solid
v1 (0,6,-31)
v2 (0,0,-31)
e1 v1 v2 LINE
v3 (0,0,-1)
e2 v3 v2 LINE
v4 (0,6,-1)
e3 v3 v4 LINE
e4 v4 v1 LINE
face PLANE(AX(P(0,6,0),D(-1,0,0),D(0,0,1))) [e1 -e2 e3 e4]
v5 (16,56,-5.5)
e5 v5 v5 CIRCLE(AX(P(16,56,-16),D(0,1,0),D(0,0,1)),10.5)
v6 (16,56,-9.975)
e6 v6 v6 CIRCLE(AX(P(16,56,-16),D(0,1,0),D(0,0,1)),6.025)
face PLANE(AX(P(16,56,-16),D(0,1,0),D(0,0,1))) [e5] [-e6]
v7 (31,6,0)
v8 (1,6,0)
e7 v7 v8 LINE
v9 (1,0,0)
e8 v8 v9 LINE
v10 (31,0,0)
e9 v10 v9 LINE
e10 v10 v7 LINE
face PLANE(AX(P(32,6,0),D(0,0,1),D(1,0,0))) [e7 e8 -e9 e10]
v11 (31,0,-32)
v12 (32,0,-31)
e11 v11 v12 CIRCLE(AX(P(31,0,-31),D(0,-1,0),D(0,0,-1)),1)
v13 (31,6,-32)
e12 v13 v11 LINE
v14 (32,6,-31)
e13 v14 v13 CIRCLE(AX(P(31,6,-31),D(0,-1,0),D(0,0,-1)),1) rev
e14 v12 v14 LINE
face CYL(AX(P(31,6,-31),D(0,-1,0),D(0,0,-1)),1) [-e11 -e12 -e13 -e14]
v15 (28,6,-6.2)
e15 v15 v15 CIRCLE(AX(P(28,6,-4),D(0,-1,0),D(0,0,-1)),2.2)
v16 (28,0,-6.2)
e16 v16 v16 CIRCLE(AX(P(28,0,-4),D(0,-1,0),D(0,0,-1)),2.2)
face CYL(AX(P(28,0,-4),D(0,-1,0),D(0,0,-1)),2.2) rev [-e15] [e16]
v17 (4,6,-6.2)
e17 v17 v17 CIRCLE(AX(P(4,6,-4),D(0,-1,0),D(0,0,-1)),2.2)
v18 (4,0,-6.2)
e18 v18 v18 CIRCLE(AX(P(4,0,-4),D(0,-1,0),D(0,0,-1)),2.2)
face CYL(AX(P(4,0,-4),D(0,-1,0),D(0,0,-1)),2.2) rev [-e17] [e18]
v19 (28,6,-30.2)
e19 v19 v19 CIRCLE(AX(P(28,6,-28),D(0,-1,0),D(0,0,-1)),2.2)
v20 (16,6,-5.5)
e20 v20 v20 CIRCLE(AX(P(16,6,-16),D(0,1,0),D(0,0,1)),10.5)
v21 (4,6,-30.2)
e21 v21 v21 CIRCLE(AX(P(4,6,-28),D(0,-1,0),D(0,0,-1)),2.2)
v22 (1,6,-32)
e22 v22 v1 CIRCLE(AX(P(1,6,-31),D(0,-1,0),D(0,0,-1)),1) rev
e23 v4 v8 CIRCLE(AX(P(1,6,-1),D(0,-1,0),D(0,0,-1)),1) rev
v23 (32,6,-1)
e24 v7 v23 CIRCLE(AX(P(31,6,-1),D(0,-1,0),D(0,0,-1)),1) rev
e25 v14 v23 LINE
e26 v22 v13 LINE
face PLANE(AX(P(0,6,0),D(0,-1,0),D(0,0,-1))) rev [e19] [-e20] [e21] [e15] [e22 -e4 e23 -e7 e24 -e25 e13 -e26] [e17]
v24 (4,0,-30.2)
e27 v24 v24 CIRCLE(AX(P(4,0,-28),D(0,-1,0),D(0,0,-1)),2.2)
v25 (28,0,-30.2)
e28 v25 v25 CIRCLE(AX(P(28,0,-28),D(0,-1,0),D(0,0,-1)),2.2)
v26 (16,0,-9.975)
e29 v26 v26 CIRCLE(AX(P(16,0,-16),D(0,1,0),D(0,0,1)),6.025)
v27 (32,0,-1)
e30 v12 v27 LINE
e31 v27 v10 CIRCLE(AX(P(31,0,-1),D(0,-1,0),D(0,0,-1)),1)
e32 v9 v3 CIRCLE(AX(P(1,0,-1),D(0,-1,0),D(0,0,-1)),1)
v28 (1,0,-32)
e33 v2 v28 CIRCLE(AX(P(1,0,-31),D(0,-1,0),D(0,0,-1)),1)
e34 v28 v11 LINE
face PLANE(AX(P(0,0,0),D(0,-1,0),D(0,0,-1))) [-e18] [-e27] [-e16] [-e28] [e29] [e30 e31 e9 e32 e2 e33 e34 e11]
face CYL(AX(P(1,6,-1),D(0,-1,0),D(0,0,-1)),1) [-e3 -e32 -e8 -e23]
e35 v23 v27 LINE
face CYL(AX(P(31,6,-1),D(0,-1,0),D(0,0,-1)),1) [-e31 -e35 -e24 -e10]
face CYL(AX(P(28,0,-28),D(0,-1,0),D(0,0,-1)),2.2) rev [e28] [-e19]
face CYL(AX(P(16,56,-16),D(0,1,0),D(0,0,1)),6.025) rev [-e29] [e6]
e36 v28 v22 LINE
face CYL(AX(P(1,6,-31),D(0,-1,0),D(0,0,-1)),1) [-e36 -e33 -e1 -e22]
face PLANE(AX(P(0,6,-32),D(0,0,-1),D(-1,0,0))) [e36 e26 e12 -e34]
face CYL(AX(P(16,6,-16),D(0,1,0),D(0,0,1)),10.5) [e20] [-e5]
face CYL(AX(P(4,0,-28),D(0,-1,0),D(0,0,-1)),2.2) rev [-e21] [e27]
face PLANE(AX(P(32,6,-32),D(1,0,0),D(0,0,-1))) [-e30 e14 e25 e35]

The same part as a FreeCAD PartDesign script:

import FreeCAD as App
import Part
import Sketcher


def edges_at(feature, points):
    """Names of the edges that pass closest to the given points."""
    edges = feature.Shape.Edges
    near = lambda p: min(range(len(edges)), key=lambda i: edges[i].distToShape(Part.Vertex(*p))[0])
    return sorted({f"Edge{near(p) + 1}" for p in points})


def add_polygon(sketch, points):
    """Adds a closed chain of lines whose ends are joined by coincident constraints."""
    first, n = sketch.GeometryCount, len(points)
    for a, b in zip(points, points[1:] + points[:1]):
        sketch.addGeometry(Part.LineSegment(App.Vector(*a, 0), App.Vector(*b, 0)), False)
    for i in range(n):
        sketch.addConstraint(Sketcher.Constraint("Coincident", first + i, 2, first + (i + 1) % n, 1))

doc = App.newDocument("Part")
body = doc.addObject("PartDesign::Body", "Body")

# Sketch on XZ plane
sketch1 = body.newObject("Sketcher::SketchObject", "Sketch")
sketch1.AttachmentSupport = (doc.getObject("XZ_Plane"), [""])
sketch1.MapMode = "FlatFace"
add_polygon(sketch1, [(0, 0), (0, -32), (32, -32), (32, 0)])  # lines 0-3
sketch1.addConstraint([
    Sketcher.Constraint("Vertical", 0),
    Sketcher.Constraint("Horizontal", 1),
    Sketcher.Constraint("Vertical", 2),
    Sketcher.Constraint("Horizontal", 3),
    Sketcher.Constraint("Coincident", 3, 2, -1, 1),
    Sketcher.Constraint("Equal", 3, 0),
    Sketcher.Constraint("DistanceX", 1, 1, 1, 2, 32.0),
])
pad1 = body.newObject("PartDesign::Pad", "Pad")
pad1.Profile = sketch1
pad1.Length = 6
pad1.Reversed = True

# Sketch on XY plane
sketch2 = body.newObject("Sketcher::SketchObject", "Sketch001")
sketch2.AttachmentSupport = (doc.getObject("XY_Plane"), [""])
sketch2.MapMode = "FlatFace"
sketch2.AttachmentOffset = App.Placement(App.Vector(0, 0, -16), App.Rotation())
add_polygon(sketch2, [(27, 56), (27, 6), (16, 6), (16, 56)])  # lines 0-3
sketch2.addGeometry(Part.LineSegment(App.Vector(16, 6, 0), App.Vector(16, 56, 0)), True)  # axis
sketch2.addConstraint([
    Sketcher.Constraint("Vertical", 0),
    Sketcher.Constraint("Horizontal", 1),
    Sketcher.Constraint("Vertical", 2),
    Sketcher.Constraint("Horizontal", 3),
    Sketcher.Constraint("Vertical", 4),
    Sketcher.Constraint("Coincident", 4, 1, 1, 2),
    Sketcher.Constraint("Horizontal", 3, 2, 4, 2),
    Sketcher.Constraint("DistanceY", 0, 2, 0, 1, 50.0),
    Sketcher.Constraint("DistanceX", 1, 2, 1, 1, 10.5),
    Sketcher.Constraint("DistanceY", -1, 1, 0, 2, 6.0),
    Sketcher.Constraint("DistanceX", -1, 1, 1, 2, 16.0),
])
revolution = body.newObject("PartDesign::Revolution", "Revolution")
revolution.Profile = sketch2
revolution.ReferenceAxis = (sketch2, ["Axis0"])
revolution.Angle = 360

# Sketch on XZ plane
sketch3 = body.newObject("Sketcher::SketchObject", "Sketch002")
sketch3.AttachmentSupport = (doc.getObject("XZ_Plane"), [""])
sketch3.MapMode = "FlatFace"
sketch3.addGeometry([
    Part.Circle(App.Vector(28, -4, 0), App.Vector(0, 0, 1), 2.2),
    Part.Circle(App.Vector(28, -28, 0), App.Vector(0, 0, 1), 2.2),
    Part.Circle(App.Vector(4, -4, 0), App.Vector(0, 0, 1), 2.2),
    Part.Circle(App.Vector(4, -28, 0), App.Vector(0, 0, 1), 2.2),
], False)
sketch3.addConstraint([
    Sketcher.Constraint("Equal", 0, 1),
    Sketcher.Constraint("Equal", 1, 2),
    Sketcher.Constraint("Equal", 2, 3),
    Sketcher.Constraint("Horizontal", 0, 3, 2, 3),
    Sketcher.Constraint("Horizontal", 1, 3, 3, 3),
    Sketcher.Constraint("Vertical", 0, 3, 1, 3),
    Sketcher.Constraint("Vertical", 2, 3, 3, 3),
    Sketcher.Constraint("Diameter", 0, 4.4),
    Sketcher.Constraint("DistanceX", -1, 1, 0, 3, 28.0),
    Sketcher.Constraint("DistanceY", 0, 3, -1, 1, 4.0),
    Sketcher.Constraint("DistanceY", 1, 3, -1, 1, 28.0),
    Sketcher.Constraint("DistanceX", -1, 1, 2, 3, 4.0),
])
doc.recompute()
hole = body.newObject("PartDesign::Hole", "Hole")
hole.Profile = sketch3
hole.ThreadType = "None"
hole.Diameter = 4.4
hole.DepthType = "Dimension"
hole.Depth = 56
hole.DrillPoint = "Flat"

# Sketch on XZ plane
sketch4 = body.newObject("Sketcher::SketchObject", "Sketch003")
sketch4.AttachmentSupport = (doc.getObject("XZ_Plane"), [""])
sketch4.MapMode = "FlatFace"
sketch4.AttachmentOffset = App.Placement(App.Vector(0, 0, -56), App.Rotation())
sketch4.addGeometry(Part.Circle(App.Vector(16, -16, 0), App.Vector(0, 0, 1), 6), False)
sketch4.addConstraint([
    Sketcher.Constraint("Diameter", 0, 12.05),
    Sketcher.Constraint("DistanceX", -1, 1, 0, 3, 16.0),
    Sketcher.Constraint("DistanceY", 0, 3, -1, 1, 16.0),
])
doc.recompute()
hole2 = body.newObject("PartDesign::Hole", "Hole001")
hole2.Profile = sketch4
hole2.ThreadType = "None"
hole2.Diameter = 12.05
hole2.DepthType = "ThroughAll"
hole2.Reversed = True
doc.recompute()

fillet = body.newObject("PartDesign::Fillet", "Fillet")
fillet.Base = (hole2, edges_at(hole2, [
    (0, 3, -32),
    (0, 3, 0),
    (32, 3, 0),
    (32, 3, -32),
]))
fillet.Radius = 1

doc.recompute()
